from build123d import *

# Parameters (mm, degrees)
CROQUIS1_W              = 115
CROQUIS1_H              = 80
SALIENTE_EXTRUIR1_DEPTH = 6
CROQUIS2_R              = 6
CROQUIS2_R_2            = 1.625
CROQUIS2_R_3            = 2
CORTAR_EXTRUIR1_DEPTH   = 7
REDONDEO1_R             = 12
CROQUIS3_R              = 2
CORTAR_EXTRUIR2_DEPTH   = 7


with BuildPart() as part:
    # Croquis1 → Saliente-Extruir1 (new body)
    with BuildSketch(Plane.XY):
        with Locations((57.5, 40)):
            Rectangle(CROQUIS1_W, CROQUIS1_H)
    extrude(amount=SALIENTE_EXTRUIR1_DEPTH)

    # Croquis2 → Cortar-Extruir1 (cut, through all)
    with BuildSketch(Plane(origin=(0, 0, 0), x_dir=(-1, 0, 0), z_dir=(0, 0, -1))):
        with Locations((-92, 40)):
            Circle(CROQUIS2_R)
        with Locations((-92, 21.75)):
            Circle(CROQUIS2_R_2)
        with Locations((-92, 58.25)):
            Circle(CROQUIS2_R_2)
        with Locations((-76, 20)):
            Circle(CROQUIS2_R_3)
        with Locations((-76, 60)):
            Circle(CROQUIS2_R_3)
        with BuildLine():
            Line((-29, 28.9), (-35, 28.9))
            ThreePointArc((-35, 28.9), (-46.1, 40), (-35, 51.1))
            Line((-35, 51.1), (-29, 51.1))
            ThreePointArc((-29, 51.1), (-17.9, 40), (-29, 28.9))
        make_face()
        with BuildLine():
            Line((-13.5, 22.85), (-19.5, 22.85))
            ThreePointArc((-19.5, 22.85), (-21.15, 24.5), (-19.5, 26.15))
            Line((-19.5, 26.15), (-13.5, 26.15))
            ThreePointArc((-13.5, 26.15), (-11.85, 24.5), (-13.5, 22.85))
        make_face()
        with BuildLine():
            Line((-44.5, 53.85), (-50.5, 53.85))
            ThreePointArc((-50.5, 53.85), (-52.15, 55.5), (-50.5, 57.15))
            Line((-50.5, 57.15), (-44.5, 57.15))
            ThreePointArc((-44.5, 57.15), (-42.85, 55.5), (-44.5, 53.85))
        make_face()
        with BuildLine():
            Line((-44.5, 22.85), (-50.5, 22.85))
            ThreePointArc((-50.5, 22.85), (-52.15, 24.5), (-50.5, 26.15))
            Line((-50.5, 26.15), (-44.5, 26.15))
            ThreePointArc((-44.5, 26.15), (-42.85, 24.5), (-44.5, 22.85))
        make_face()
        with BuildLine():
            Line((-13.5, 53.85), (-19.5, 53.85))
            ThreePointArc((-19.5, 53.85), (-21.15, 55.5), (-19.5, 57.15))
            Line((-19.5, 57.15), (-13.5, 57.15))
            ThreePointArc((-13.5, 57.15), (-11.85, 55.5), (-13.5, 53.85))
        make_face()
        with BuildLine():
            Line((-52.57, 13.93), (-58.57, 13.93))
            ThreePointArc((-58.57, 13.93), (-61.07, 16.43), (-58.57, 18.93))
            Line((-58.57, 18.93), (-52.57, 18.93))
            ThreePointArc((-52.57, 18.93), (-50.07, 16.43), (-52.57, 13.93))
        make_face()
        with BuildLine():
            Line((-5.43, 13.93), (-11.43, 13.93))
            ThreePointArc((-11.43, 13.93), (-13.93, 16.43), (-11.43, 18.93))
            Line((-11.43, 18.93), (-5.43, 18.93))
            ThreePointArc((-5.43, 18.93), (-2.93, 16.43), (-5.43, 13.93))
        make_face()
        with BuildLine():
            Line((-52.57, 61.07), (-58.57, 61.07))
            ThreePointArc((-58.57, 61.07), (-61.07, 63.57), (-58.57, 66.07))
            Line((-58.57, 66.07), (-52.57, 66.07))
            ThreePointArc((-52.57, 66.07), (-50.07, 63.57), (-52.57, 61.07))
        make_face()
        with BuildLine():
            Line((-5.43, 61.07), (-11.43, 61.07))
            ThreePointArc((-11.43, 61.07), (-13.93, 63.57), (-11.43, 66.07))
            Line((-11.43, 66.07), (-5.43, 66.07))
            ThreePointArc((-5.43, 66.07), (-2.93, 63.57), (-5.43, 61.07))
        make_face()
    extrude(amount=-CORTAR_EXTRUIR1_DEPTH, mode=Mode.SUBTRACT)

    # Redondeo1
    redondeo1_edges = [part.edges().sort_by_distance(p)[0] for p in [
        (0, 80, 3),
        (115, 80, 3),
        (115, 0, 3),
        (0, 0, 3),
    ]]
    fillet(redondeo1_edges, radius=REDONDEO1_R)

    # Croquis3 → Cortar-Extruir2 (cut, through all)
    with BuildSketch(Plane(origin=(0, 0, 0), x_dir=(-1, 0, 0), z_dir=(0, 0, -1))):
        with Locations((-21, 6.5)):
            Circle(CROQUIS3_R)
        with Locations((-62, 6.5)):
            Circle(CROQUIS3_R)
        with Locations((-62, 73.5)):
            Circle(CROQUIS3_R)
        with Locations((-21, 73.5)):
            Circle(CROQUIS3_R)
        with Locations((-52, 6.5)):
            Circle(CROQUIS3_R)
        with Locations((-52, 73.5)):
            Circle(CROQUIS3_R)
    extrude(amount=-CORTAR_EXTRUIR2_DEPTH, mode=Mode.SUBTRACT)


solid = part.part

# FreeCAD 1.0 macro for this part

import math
import FreeCAD as App
import Part
import Sketcher
Q = App.Units.Quantity


def edges_at(feature, points):
    """Names of the edges that pass closest to the given points."""
    edges = feature.Shape.Edges
    near = lambda p: min(range(len(edges)), key=lambda i: edges[i].distToShape(Part.Vertex(*p))[0])
    return sorted({f"Edge{near(p) + 1}" for p in points})


def add_polygon(sketch, points):
    """Adds a closed chain of lines whose ends are joined by coincident constraints."""
    first, n = sketch.GeometryCount, len(points)
    for a, b in zip(points, points[1:] + points[:1]):
        sketch.addGeometry(Part.LineSegment(App.Vector(*a, 0), App.Vector(*b, 0)), False)
    for i in range(n):
        sketch.addConstraint(Sketcher.Constraint("Coincident", first + i, 2, first + (i + 1) % n, 1))

doc = App.newDocument("Part")
body = doc.addObject("PartDesign::Body", "Body")

# Sketch on XY plane
sketch1 = body.newObject("Sketcher::SketchObject", "Sketch")
sketch1.AttachmentSupport = (doc.getObject("XY_Plane"), [""])
sketch1.MapMode = "FlatFace"
add_polygon(sketch1, [(0, 80), (0, 0), (115, 0), (115, 80)])  # lines 0-3
sketch1.addConstraint(Sketcher.Constraint("Vertical", 0))
sketch1.addConstraint(Sketcher.Constraint("Horizontal", 1))
sketch1.addConstraint(Sketcher.Constraint("Vertical", 2))
sketch1.addConstraint(Sketcher.Constraint("Horizontal", 3))
sketch1.addConstraint(Sketcher.Constraint("Coincident", 0, 2, -1, 1))
sketch1.addConstraint(Sketcher.Constraint("DistanceX", 1, 1, 1, 2, Q("115 mm")))
sketch1.addConstraint(Sketcher.Constraint("DistanceY", 0, 2, 0, 1, Q("80 mm")))
pad1 = body.newObject("PartDesign::Pad", "Pad")
pad1.Profile = sketch1
pad1.Length = 6

# Sketch on XY plane
sketch2 = body.newObject("Sketcher::SketchObject", "Sketch001")
sketch2.AttachmentSupport = (doc.getObject("XY_Plane"), [""])
sketch2.MapMode = "FlatFace"
sketch2.addGeometry(Part.Circle(App.Vector(92, 40, 0), App.Vector(0, 0, 1), 6), False)
sketch2.addGeometry(Part.Circle(App.Vector(92, 21.75, 0), App.Vector(0, 0, 1), 1.625), False)
sketch2.addGeometry(Part.Circle(App.Vector(92, 58.25, 0), App.Vector(0, 0, 1), 1.625), False)
sketch2.addGeometry(Part.Circle(App.Vector(76, 20, 0), App.Vector(0, 0, 1), 2), False)
sketch2.addGeometry(Part.Circle(App.Vector(76, 60, 0), App.Vector(0, 0, 1), 2), False)
sketch2.addGeometry(Part.LineSegment(App.Vector(35, 28.9, 0), App.Vector(29, 28.9, 0)), False)
sketch2.addGeometry(Part.ArcOfCircle(Part.Circle(App.Vector(29, 40, 0), App.Vector(0, 0, 1), 11.1), math.radians(90), math.radians(270)), False)
sketch2.addGeometry(Part.LineSegment(App.Vector(29, 51.1, 0), App.Vector(35, 51.1, 0)), False)
sketch2.addGeometry(Part.ArcOfCircle(Part.Circle(App.Vector(35, 40, 0), App.Vector(0, 0, 1), 11.1), math.radians(-90), math.radians(90)), False)
sketch2.addGeometry(Part.LineSegment(App.Vector(19.5, 22.85, 0), App.Vector(13.5, 22.85, 0)), False)
sketch2.addGeometry(Part.ArcOfCircle(Part.Circle(App.Vector(13.5, 24.5, 0), App.Vector(0, 0, 1), 1.65), math.radians(90), math.radians(270)), False)
sketch2.addGeometry(Part.LineSegment(App.Vector(13.5, 26.15, 0), App.Vector(19.5, 26.15, 0)), False)
sketch2.addGeometry(Part.ArcOfCircle(Part.Circle(App.Vector(19.5, 24.5, 0), App.Vector(0, 0, 1), 1.65), math.radians(-90), math.radians(90)), False)
sketch2.addGeometry(Part.LineSegment(App.Vector(50.5, 53.85, 0), App.Vector(44.5, 53.85, 0)), False)
sketch2.addGeometry(Part.ArcOfCircle(Part.Circle(App.Vector(44.5, 55.5, 0), App.Vector(0, 0, 1), 1.65), math.radians(90), math.radians(270)), False)
sketch2.addGeometry(Part.LineSegment(App.Vector(44.5, 57.15, 0), App.Vector(50.5, 57.15, 0)), False)
sketch2.addGeometry(Part.ArcOfCircle(Part.Circle(App.Vector(50.5, 55.5, 0), App.Vector(0, 0, 1), 1.65), math.radians(-90), math.radians(90)), False)
sketch2.addGeometry(Part.LineSegment(App.Vector(50.5, 22.85, 0), App.Vector(44.5, 22.85, 0)), False)
sketch2.addGeometry(Part.ArcOfCircle(Part.Circle(App.Vector(44.5, 24.5, 0), App.Vector(0, 0, 1), 1.65), math.radians(90), math.radians(270)), False)
sketch2.addGeometry(Part.LineSegment(App.Vector(44.5, 26.15, 0), App.Vector(50.5, 26.15, 0)), False)
sketch2.addGeometry(Part.ArcOfCircle(Part.Circle(App.Vector(50.5, 24.5, 0), App.Vector(0, 0, 1), 1.65), math.radians(-90), math.radians(90)), False)
sketch2.addGeometry(Part.LineSegment(App.Vector(19.5, 53.85, 0), App.Vector(13.5, 53.85, 0)), False)
sketch2.addGeometry(Part.ArcOfCircle(Part.Circle(App.Vector(13.5, 55.5, 0), App.Vector(0, 0, 1), 1.65), math.radians(90), math.radians(270)), False)
sketch2.addGeometry(Part.LineSegment(App.Vector(13.5, 57.15, 0), App.Vector(19.5, 57.15, 0)), False)
sketch2.addGeometry(Part.ArcOfCircle(Part.Circle(App.Vector(19.5, 55.5, 0), App.Vector(0, 0, 1), 1.65), math.radians(-90), math.radians(90)), False)
sketch2.addGeometry(Part.LineSegment(App.Vector(58.57, 13.93, 0), App.Vector(52.57, 13.93, 0)), False)
sketch2.addGeometry(Part.ArcOfCircle(Part.Circle(App.Vector(52.57, 16.43, 0), App.Vector(0, 0, 1), 2.5), math.radians(90), math.radians(270)), False)
sketch2.addGeometry(Part.LineSegment(App.Vector(52.57, 18.93, 0), App.Vector(58.57, 18.93, 0)), False)
sketch2.addGeometry(Part.ArcOfCircle(Part.Circle(App.Vector(58.57, 16.43, 0), App.Vector(0, 0, 1), 2.5), math.radians(-90), math.radians(90)), False)
sketch2.addGeometry(Part.LineSegment(App.Vector(11.43, 13.93, 0), App.Vector(5.43, 13.93, 0)), False)
sketch2.addGeometry(Part.ArcOfCircle(Part.Circle(App.Vector(5.43, 16.43, 0), App.Vector(0, 0, 1), 2.5), math.radians(90), math.radians(270)), False)
sketch2.addGeometry(Part.LineSegment(App.Vector(5.43, 18.93, 0), App.Vector(11.43, 18.93, 0)), False)
sketch2.addGeometry(Part.ArcOfCircle(Part.Circle(App.Vector(11.43, 16.43, 0), App.Vector(0, 0, 1), 2.5), math.radians(-90), math.radians(90)), False)
sketch2.addGeometry(Part.LineSegment(App.Vector(58.57, 61.07, 0), App.Vector(52.57, 61.07, 0)), False)
sketch2.addGeometry(Part.ArcOfCircle(Part.Circle(App.Vector(52.57, 63.57, 0), App.Vector(0, 0, 1), 2.5), math.radians(90), math.radians(270)), False)
sketch2.addGeometry(Part.LineSegment(App.Vector(52.57, 66.07, 0), App.Vector(58.57, 66.07, 0)), False)
sketch2.addGeometry(Part.ArcOfCircle(Part.Circle(App.Vector(58.57, 63.57, 0), App.Vector(0, 0, 1), 2.5), math.radians(-90), math.radians(90)), False)
sketch2.addGeometry(Part.LineSegment(App.Vector(11.43, 61.07, 0), App.Vector(5.43, 61.07, 0)), False)
sketch2.addGeometry(Part.ArcOfCircle(Part.Circle(App.Vector(5.43, 63.57, 0), App.Vector(0, 0, 1), 2.5), math.radians(90), math.radians(270)), False)
sketch2.addGeometry(Part.LineSegment(App.Vector(5.43, 66.07, 0), App.Vector(11.43, 66.07, 0)), False)
sketch2.addGeometry(Part.ArcOfCircle(Part.Circle(App.Vector(11.43, 63.57, 0), App.Vector(0, 0, 1), 2.5), math.radians(-90), math.radians(90)), False)
sketch2.addConstraint(Sketcher.Constraint("Tangent", 5, 2, 6, 2))
sketch2.addConstraint(Sketcher.Constraint("Tangent", 6, 1, 7, 1))
sketch2.addConstraint(Sketcher.Constraint("Tangent", 7, 2, 8, 2))
sketch2.addConstraint(Sketcher.Constraint("Tangent", 8, 1, 5, 1))
sketch2.addConstraint(Sketcher.Constraint("Tangent", 9, 2, 10, 2))
sketch2.addConstraint(Sketcher.Constraint("Tangent", 10, 1, 11, 1))
sketch2.addConstraint(Sketcher.Constraint("Tangent", 11, 2, 12, 2))
sketch2.addConstraint(Sketcher.Constraint("Tangent", 12, 1, 9, 1))
sketch2.addConstraint(Sketcher.Constraint("Tangent", 13, 2, 14, 2))
sketch2.addConstraint(Sketcher.Constraint("Tangent", 14, 1, 15, 1))
sketch2.addConstraint(Sketcher.Constraint("Tangent", 15, 2, 16, 2))
sketch2.addConstraint(Sketcher.Constraint("Tangent", 16, 1, 13, 1))
sketch2.addConstraint(Sketcher.Constraint("Tangent", 17, 2, 18, 2))
sketch2.addConstraint(Sketcher.Constraint("Tangent", 18, 1, 19, 1))
sketch2.addConstraint(Sketcher.Constraint("Tangent", 19, 2, 20, 2))
sketch2.addConstraint(Sketcher.Constraint("Tangent", 20, 1, 17, 1))
sketch2.addConstraint(Sketcher.Constraint("Tangent", 21, 2, 22, 2))
sketch2.addConstraint(Sketcher.Constraint("Tangent", 22, 1, 23, 1))
sketch2.addConstraint(Sketcher.Constraint("Tangent", 23, 2, 24, 2))
sketch2.addConstraint(Sketcher.Constraint("Tangent", 24, 1, 21, 1))
sketch2.addConstraint(Sketcher.Constraint("Tangent", 25, 2, 26, 2))
sketch2.addConstraint(Sketcher.Constraint("Tangent", 26, 1, 27, 1))
sketch2.addConstraint(Sketcher.Constraint("Tangent", 27, 2, 28, 2))
sketch2.addConstraint(Sketcher.Constraint("Tangent", 28, 1, 25, 1))
sketch2.addConstraint(Sketcher.Constraint("Tangent", 29, 2, 30, 2))
sketch2.addConstraint(Sketcher.Constraint("Tangent", 30, 1, 31, 1))
sketch2.addConstraint(Sketcher.Constraint("Tangent", 31, 2, 32, 2))
sketch2.addConstraint(Sketcher.Constraint("Tangent", 32, 1, 29, 1))
sketch2.addConstraint(Sketcher.Constraint("Tangent", 33, 2, 34, 2))
sketch2.addConstraint(Sketcher.Constraint("Tangent", 34, 1, 35, 1))
sketch2.addConstraint(Sketcher.Constraint("Tangent", 35, 2, 36, 2))
sketch2.addConstraint(Sketcher.Constraint("Tangent", 36, 1, 33, 1))
sketch2.addConstraint(Sketcher.Constraint("Tangent", 37, 2, 38, 2))
sketch2.addConstraint(Sketcher.Constraint("Tangent", 38, 1, 39, 1))
sketch2.addConstraint(Sketcher.Constraint("Tangent", 39, 2, 40, 2))
sketch2.addConstraint(Sketcher.Constraint("Tangent", 40, 1, 37, 1))
sketch2.addConstraint(Sketcher.Constraint("Horizontal", 5))
sketch2.addConstraint(Sketcher.Constraint("Horizontal", 7))
sketch2.addConstraint(Sketcher.Constraint("Horizontal", 9))
sketch2.addConstraint(Sketcher.Constraint("Horizontal", 11))
sketch2.addConstraint(Sketcher.Constraint("Horizontal", 13))
sketch2.addConstraint(Sketcher.Constraint("Horizontal", 15))
sketch2.addConstraint(Sketcher.Constraint("Horizontal", 17))
sketch2.addConstraint(Sketcher.Constraint("Horizontal", 19))
sketch2.addConstraint(Sketcher.Constraint("Horizontal", 21))
sketch2.addConstraint(Sketcher.Constraint("Horizontal", 23))
sketch2.addConstraint(Sketcher.Constraint("Horizontal", 25))
sketch2.addConstraint(Sketcher.Constraint("Horizontal", 27))
sketch2.addConstraint(Sketcher.Constraint("Horizontal", 29))
sketch2.addConstraint(Sketcher.Constraint("Horizontal", 31))
sketch2.addConstraint(Sketcher.Constraint("Horizontal", 33))
sketch2.addConstraint(Sketcher.Constraint("Horizontal", 35))
sketch2.addConstraint(Sketcher.Constraint("Horizontal", 37))
sketch2.addConstraint(Sketcher.Constraint("Horizontal", 39))
sketch2.addConstraint(Sketcher.Constraint("Equal", 1, 2))
sketch2.addConstraint(Sketcher.Constraint("Equal", 3, 4))
sketch2.addConstraint(Sketcher.Constraint("Equal", 12, 14))
sketch2.addConstraint(Sketcher.Constraint("Equal", 16, 18))
sketch2.addConstraint(Sketcher.Constraint("Equal", 20, 22))
sketch2.addConstraint(Sketcher.Constraint("Equal", 28, 30))
sketch2.addConstraint(Sketcher.Constraint("Equal", 32, 34))
sketch2.addConstraint(Sketcher.Constraint("Equal", 36, 38))
sketch2.addConstraint(Sketcher.Constraint("Horizontal", 0, 3, 6, 3))
sketch2.addConstraint(Sketcher.Constraint("Horizontal", 12, 3, 18, 3))
sketch2.addConstraint(Sketcher.Constraint("Horizontal", 16, 3, 22, 3))
sketch2.addConstraint(Sketcher.Constraint("Horizontal", 28, 3, 30, 3))
sketch2.addConstraint(Sketcher.Constraint("Horizontal", 36, 3, 38, 3))
sketch2.addConstraint(Sketcher.Constraint("Vertical", 0, 3, 1, 3))
sketch2.addConstraint(Sketcher.Constraint("Vertical", 1, 3, 2, 3))
sketch2.addConstraint(Sketcher.Constraint("Vertical", 3, 3, 4, 3))
sketch2.addConstraint(Sketcher.Constraint("Vertical", 14, 3, 18, 3))
sketch2.addConstraint(Sketcher.Constraint("Vertical", 16, 3, 20, 3))
sketch2.addConstraint(Sketcher.Constraint("Vertical", 10, 3, 22, 3))
sketch2.addConstraint(Sketcher.Constraint("Vertical", 12, 3, 24, 3))
sketch2.addConstraint(Sketcher.Constraint("Vertical", 26, 3, 34, 3))
sketch2.addConstraint(Sketcher.Constraint("Vertical", 28, 3, 36, 3))
sketch2.addConstraint(Sketcher.Constraint("Vertical", 30, 3, 38, 3))
sketch2.addConstraint(Sketcher.Constraint("Vertical", 32, 3, 40, 3))
sketch2.addConstraint(Sketcher.Constraint("Equal", 7, 9))
sketch2.addConstraint(Sketcher.Constraint("Equal", 11, 13))
sketch2.addConstraint(Sketcher.Constraint("Equal", 23, 25))
sketch2.addConstraint(Sketcher.Constraint("Equal", 27, 29))
sketch2.addConstraint(Sketcher.Constraint("Diameter", 0, Q("12 mm")))
sketch2.addConstraint(Sketcher.Constraint("Diameter", 3, Q("4 mm")))
sketch2.addConstraint(Sketcher.Constraint("Radius", 6, Q("11.1 mm")))
sketch2.addConstraint(Sketcher.Constraint("Radius", 26, Q("2.5 mm")))
sketch2.addConstraint(Sketcher.Constraint("Diameter", 1, Q("3.25 mm")))
sketch2.addConstraint(Sketcher.Constraint("DistanceX", 5, 2, 5, 1, Q("6 mm")))
sketch2.addConstraint(Sketcher.Constraint("Radius", 10, Q("1.65 mm")))
sketch2.addConstraint(Sketcher.Constraint("DistanceX", -1, 1, 0, 3, Q("92 mm")))
sketch2.addConstraint(Sketcher.Constraint("DistanceY", -1, 1, 0, 3, Q("40 mm")))
sketch2.addConstraint(Sketcher.Constraint("DistanceX", -1, 1, 3, 3, Q("76 mm")))
sketch2.addConstraint(Sketcher.Constraint("DistanceY", -1, 1, 3, 3, Q("20 mm")))
sketch2.addConstraint(Sketcher.Constraint("DistanceY", -1, 1, 4, 3, Q("60 mm")))
sketch2.addConstraint(Sketcher.Constraint("DistanceX", -1, 1, 6, 3, Q("29 mm")))
sketch2.addConstraint(Sketcher.Constraint("DistanceX", 12, 3, 14, 3, Q("25 mm")))
sketch2.addConstraint(Sketcher.Constraint("DistanceY", 12, 3, 14, 3, Q("31 mm")))
sketch2.addConstraint(Sketcher.Constraint("DistanceX", -1, 1, 10, 3, Q("13.5 mm")))
sketch2.addConstraint(Sketcher.Constraint("DistanceY", -1, 1, 10, 3, Q("24.5 mm")))
sketch2.addConstraint(Sketcher.Constraint("DistanceY", 1, 3, 2, 3, Q("36.5 mm")))
sketch2.addConstraint(Sketcher.Constraint("DistanceY", -1, 1, 1, 3, Q("21.75 mm")))
sketch2.addConstraint(Sketcher.Constraint("DistanceX", -1, 1, 26, 3, Q("52.57 mm")))
sketch2.addConstraint(Sketcher.Constraint("DistanceY", -1, 1, 26, 3, Q("16.43 mm")))
sketch2.addConstraint(Sketcher.Constraint("DistanceX", -1, 1, 30, 3, Q("5.43 mm")))
sketch2.addConstraint(Sketcher.Constraint("DistanceY", -1, 1, 34, 3, Q("63.57 mm")))
pocket1 = body.newObject("PartDesign::Pocket", "Pocket")
pocket1.Profile = sketch2
pocket1.Type = "ThroughAll"
pocket1.Reversed = True
doc.recompute()

fillet = body.newObject("PartDesign::Fillet", "Fillet")
fillet.Base = (pocket1, edges_at(pocket1, [
    (0, 80, 3),
    (115, 80, 3),
    (115, 0, 3),
    (0, 0, 3),
]))
fillet.Radius = 12

# Sketch on XY plane
sketch3 = body.newObject("Sketcher::SketchObject", "Sketch002")
sketch3.AttachmentSupport = (doc.getObject("XY_Plane"), [""])
sketch3.MapMode = "FlatFace"
sketch3.addGeometry(Part.Circle(App.Vector(21, 6.5, 0), App.Vector(0, 0, 1), 2), False)
sketch3.addGeometry(Part.Circle(App.Vector(62, 6.5, 0), App.Vector(0, 0, 1), 2), False)
sketch3.addGeometry(Part.Circle(App.Vector(62, 73.5, 0), App.Vector(0, 0, 1), 2), False)
sketch3.addGeometry(Part.Circle(App.Vector(21, 73.5, 0), App.Vector(0, 0, 1), 2), False)
sketch3.addGeometry(Part.Circle(App.Vector(52, 6.5, 0), App.Vector(0, 0, 1), 2), False)
sketch3.addGeometry(Part.Circle(App.Vector(52, 73.5, 0), App.Vector(0, 0, 1), 2), False)
sketch3.addConstraint(Sketcher.Constraint("Equal", 0, 1))
sketch3.addConstraint(Sketcher.Constraint("Equal", 1, 2))
sketch3.addConstraint(Sketcher.Constraint("Equal", 2, 3))
sketch3.addConstraint(Sketcher.Constraint("Equal", 3, 4))
sketch3.addConstraint(Sketcher.Constraint("Equal", 4, 5))
sketch3.addConstraint(Sketcher.Constraint("Horizontal", 0, 3, 1, 3))
sketch3.addConstraint(Sketcher.Constraint("Horizontal", 2, 3, 3, 3))
sketch3.addConstraint(Sketcher.Constraint("Horizontal", 1, 3, 4, 3))
sketch3.addConstraint(Sketcher.Constraint("Horizontal", 3, 3, 5, 3))
sketch3.addConstraint(Sketcher.Constraint("Vertical", 1, 3, 2, 3))
sketch3.addConstraint(Sketcher.Constraint("Vertical", 0, 3, 3, 3))
sketch3.addConstraint(Sketcher.Constraint("Vertical", 4, 3, 5, 3))
sketch3.addConstraint(Sketcher.Constraint("Diameter", 0, Q("4 mm")))
sketch3.addConstraint(Sketcher.Constraint("DistanceX", -1, 1, 0, 3, Q("21 mm")))
sketch3.addConstraint(Sketcher.Constraint("DistanceX", -1, 1, 1, 3, Q("62 mm")))
sketch3.addConstraint(Sketcher.Constraint("DistanceX", -1, 1, 4, 3, Q("52 mm")))
sketch3.addConstraint(Sketcher.Constraint("DistanceY", 1, 3, 2, 3, Q("67 mm")))
sketch3.addConstraint(Sketcher.Constraint("DistanceY", -1, 1, 0, 3, Q("6.5 mm")))
pocket2 = body.newObject("PartDesign::Pocket", "Pocket001")
pocket2.Profile = sketch3
pocket2.Type = "ThroughAll"
pocket2.Reversed = True

doc.recompute()
